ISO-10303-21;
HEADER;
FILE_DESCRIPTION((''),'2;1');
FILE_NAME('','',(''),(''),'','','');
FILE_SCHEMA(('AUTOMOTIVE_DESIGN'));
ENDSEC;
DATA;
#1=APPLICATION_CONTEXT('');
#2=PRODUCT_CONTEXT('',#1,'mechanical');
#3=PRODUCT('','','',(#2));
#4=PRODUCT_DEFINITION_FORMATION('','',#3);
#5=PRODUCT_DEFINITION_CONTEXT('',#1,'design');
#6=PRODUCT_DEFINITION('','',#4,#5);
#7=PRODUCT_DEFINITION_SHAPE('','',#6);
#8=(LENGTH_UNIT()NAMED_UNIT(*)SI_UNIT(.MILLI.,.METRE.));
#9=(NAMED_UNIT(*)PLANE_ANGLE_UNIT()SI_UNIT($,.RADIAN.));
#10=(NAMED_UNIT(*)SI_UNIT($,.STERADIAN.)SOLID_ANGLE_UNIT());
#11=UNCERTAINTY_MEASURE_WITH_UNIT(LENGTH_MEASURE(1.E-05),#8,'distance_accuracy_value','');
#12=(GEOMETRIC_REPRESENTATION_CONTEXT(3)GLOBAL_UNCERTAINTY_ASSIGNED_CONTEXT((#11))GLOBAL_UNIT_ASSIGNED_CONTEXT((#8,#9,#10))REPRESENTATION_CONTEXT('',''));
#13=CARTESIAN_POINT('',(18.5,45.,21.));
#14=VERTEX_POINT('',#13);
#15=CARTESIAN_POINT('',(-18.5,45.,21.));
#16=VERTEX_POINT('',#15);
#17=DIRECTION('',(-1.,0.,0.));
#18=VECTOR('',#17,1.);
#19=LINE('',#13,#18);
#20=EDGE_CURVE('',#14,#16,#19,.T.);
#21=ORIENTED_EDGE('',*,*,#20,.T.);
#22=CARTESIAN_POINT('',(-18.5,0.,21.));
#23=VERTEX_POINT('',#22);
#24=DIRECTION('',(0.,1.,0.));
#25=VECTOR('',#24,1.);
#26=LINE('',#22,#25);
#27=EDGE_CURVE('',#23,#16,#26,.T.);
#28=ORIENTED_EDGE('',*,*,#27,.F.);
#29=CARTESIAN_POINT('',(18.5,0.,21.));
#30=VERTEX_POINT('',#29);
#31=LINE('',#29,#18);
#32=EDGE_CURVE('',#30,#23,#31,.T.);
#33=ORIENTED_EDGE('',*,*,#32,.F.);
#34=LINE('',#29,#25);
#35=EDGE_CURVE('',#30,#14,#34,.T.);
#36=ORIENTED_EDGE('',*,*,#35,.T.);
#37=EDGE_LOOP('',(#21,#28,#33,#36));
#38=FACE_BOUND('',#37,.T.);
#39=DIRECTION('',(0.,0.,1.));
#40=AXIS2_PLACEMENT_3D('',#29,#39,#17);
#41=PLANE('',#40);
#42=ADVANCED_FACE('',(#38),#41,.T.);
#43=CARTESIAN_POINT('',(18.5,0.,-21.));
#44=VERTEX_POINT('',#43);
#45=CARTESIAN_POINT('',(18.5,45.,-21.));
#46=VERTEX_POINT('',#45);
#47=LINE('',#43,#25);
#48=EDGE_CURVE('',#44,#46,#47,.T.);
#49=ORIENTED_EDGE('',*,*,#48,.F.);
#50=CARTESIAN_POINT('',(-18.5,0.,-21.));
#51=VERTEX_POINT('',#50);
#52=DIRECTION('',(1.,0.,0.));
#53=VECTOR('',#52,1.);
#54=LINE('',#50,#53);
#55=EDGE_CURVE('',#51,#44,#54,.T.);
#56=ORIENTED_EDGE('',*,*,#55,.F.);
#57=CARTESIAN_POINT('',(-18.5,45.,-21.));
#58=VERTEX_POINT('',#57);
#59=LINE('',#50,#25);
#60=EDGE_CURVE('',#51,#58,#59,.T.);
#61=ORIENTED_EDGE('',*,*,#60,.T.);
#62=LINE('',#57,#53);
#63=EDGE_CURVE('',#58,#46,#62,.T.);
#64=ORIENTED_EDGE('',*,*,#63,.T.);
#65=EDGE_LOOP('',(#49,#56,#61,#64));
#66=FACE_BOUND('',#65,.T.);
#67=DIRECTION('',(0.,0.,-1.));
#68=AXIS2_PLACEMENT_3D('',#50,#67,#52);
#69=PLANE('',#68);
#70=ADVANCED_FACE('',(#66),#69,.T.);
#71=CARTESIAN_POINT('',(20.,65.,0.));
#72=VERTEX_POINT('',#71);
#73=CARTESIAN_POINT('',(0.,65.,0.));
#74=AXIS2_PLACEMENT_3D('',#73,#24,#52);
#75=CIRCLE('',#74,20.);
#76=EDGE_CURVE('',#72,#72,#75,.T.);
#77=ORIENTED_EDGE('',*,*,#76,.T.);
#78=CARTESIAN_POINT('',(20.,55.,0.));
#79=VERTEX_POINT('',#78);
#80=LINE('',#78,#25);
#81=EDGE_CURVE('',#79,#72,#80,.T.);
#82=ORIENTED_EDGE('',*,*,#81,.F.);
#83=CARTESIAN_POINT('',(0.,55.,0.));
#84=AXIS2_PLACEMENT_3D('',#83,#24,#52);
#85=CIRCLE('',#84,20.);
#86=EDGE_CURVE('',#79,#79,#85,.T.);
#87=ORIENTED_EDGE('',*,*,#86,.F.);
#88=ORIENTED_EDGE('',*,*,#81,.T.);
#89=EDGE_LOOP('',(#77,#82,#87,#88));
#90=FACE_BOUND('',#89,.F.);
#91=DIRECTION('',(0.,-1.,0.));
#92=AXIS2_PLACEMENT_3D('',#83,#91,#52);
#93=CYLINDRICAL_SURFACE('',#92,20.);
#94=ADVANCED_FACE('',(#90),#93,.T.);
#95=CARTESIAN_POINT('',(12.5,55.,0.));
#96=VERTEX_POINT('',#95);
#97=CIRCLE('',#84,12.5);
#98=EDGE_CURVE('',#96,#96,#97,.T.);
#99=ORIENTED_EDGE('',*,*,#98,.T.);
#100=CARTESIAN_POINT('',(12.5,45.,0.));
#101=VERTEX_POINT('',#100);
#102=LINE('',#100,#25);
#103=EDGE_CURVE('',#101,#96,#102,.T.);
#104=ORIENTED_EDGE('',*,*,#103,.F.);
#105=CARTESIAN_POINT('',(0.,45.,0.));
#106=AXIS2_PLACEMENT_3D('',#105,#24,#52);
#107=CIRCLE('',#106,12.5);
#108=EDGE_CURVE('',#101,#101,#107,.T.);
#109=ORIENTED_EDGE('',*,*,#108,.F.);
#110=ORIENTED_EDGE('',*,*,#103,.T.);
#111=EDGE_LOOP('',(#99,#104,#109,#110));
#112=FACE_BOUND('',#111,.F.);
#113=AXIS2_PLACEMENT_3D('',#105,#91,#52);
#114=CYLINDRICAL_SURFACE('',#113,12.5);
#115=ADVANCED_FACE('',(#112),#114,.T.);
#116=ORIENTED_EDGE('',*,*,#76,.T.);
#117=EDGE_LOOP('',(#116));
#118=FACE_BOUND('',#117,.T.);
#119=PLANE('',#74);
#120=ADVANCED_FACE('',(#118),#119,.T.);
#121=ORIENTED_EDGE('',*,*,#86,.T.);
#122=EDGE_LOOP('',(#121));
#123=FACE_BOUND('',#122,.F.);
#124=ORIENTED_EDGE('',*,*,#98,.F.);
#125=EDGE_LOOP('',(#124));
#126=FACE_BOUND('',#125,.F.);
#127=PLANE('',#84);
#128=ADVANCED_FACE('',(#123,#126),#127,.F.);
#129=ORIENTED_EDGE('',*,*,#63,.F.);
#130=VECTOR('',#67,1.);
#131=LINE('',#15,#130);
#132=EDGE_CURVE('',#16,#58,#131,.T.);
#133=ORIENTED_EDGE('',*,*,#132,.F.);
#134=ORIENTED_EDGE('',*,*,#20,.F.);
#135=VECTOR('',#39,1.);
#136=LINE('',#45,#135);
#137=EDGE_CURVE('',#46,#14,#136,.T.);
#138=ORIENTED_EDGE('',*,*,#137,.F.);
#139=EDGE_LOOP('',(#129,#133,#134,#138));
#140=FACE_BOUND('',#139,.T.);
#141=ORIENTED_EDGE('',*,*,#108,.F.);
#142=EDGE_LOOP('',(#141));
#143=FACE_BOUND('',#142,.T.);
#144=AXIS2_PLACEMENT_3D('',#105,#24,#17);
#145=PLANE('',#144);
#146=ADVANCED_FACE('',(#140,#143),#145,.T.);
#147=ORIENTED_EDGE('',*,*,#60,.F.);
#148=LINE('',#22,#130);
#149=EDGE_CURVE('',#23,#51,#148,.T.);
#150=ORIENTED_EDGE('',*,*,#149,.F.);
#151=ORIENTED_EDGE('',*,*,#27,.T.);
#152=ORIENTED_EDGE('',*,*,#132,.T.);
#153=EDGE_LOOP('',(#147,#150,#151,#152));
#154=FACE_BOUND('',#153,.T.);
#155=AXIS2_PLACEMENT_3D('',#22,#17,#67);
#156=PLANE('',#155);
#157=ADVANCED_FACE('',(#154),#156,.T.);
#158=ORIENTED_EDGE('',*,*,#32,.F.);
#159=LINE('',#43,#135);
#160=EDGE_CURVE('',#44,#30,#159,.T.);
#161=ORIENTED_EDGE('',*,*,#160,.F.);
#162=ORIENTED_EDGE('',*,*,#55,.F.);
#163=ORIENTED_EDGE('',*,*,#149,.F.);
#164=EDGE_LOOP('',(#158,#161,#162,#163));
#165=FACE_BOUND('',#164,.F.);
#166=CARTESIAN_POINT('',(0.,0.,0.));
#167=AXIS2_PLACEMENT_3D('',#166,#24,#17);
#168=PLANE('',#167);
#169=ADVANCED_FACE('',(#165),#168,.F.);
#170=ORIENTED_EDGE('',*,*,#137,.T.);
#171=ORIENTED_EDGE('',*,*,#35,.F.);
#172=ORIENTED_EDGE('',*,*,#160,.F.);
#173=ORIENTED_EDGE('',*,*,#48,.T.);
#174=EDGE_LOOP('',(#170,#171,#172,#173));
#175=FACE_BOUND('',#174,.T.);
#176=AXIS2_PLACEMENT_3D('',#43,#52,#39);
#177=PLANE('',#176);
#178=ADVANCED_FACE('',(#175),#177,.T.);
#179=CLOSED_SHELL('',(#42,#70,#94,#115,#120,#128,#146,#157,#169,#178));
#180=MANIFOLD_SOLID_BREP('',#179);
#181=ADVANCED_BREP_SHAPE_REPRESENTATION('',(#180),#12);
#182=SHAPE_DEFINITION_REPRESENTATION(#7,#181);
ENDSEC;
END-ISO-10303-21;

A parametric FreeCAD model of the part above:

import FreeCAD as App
import Part
import Sketcher


def add_polygon(sketch, points):
    """Adds a closed chain of lines whose ends are joined by coincident constraints."""
    first, n = sketch.GeometryCount, len(points)
    for a, b in zip(points, points[1:] + points[:1]):
        sketch.addGeometry(Part.LineSegment(App.Vector(*a, 0), App.Vector(*b, 0)), False)
    for i in range(n):
        sketch.addConstraint(Sketcher.Constraint("Coincident", first + i, 2, first + (i + 1) % n, 1))

doc = App.newDocument("Part")
body = doc.addObject("PartDesign::Body", "Body")

# Sketch on XZ plane
sketch1 = body.newObject("Sketcher::SketchObject", "Sketch")
sketch1.AttachmentSupport = (doc.getObject("XZ_Plane"), [""])
sketch1.MapMode = "FlatFace"
add_polygon(sketch1, [(-18.5, 21), (18.5, 21), (18.5, -21), (-18.5, -21)])  # lines 0-3
sketch1.addConstraint([
    Sketcher.Constraint("Horizontal", 0),
    Sketcher.Constraint("Vertical", 1),
    Sketcher.Constraint("Horizontal", 2),
    Sketcher.Constraint("Vertical", 3),
    Sketcher.Constraint("Symmetric", 0, 2, 2, 2, -1, 1),
    Sketcher.Constraint("DistanceX", 0, 1, 0, 2, 37.0),
    Sketcher.Constraint("DistanceY", 1, 2, 1, 1, 42.0),
])
pad1 = body.newObject("PartDesign::Pad", "Pad")
pad1.Profile = sketch1
pad1.Length = 45
pad1.Reversed = True

# Sketch on XZ plane
sketch2 = body.newObject("Sketcher::SketchObject", "Sketch001")
sketch2.AttachmentSupport = (doc.getObject("XZ_Plane"), [""])
sketch2.MapMode = "FlatFace"
sketch2.AttachmentOffset = App.Placement(App.Vector(0, 0, -45), App.Rotation())
sketch2.addGeometry(Part.Circle(App.Vector(0, 0, 0), App.Vector(0, 0, 1), 12.5), False)
sketch2.addConstraint([
    Sketcher.Constraint("Coincident", 0, 3, -1, 1),
    Sketcher.Constraint("Diameter", 0, 25.0),
])
pad2 = body.newObject("PartDesign::Pad", "Pad001")
pad2.Profile = sketch2
pad2.Length = 10
pad2.Reversed = True

# Sketch on XZ plane
sketch3 = body.newObject("Sketcher::SketchObject", "Sketch002")
sketch3.AttachmentSupport = (doc.getObject("XZ_Plane"), [""])
sketch3.MapMode = "FlatFace"
sketch3.AttachmentOffset = App.Placement(App.Vector(0, 0, -55), App.Rotation())
sketch3.addGeometry(Part.Circle(App.Vector(0, 0, 0), App.Vector(0, 0, 1), 20), False)
sketch3.addConstraint([
    Sketcher.Constraint("Coincident", 0, 3, -1, 1),
    Sketcher.Constraint("Diameter", 0, 40.0),
])
pad3 = body.newObject("PartDesign::Pad", "Pad002")
pad3.Profile = sketch3
pad3.Length = 10
pad3.Reversed = True

doc.recompute()
